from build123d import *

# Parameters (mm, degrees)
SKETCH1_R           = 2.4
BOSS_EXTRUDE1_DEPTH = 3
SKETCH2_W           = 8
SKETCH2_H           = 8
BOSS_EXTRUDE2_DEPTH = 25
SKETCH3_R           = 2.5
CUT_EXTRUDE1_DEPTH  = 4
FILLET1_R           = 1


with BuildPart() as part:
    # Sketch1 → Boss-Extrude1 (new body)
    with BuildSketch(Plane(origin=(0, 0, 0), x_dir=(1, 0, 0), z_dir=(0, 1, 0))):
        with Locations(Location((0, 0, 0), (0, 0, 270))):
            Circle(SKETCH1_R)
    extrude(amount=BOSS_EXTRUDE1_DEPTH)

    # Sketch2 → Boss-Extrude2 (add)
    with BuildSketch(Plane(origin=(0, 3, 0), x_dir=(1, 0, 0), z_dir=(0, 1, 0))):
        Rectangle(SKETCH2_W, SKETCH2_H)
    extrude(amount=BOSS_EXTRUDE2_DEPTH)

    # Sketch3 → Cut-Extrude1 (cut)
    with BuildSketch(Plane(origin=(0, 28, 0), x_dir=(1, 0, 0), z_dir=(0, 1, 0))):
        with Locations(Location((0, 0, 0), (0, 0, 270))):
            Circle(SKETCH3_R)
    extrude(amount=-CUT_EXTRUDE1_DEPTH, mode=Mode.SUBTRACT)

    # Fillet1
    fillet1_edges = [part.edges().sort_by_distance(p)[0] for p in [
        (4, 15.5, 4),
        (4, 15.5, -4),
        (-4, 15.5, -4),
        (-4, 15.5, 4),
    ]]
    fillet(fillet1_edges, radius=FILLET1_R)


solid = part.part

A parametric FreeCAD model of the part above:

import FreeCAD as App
import Part
import Sketcher

V = App.Vector
Q = App.Units.Quantity


def edges_at(feature, points):
    """Names of the edges that pass closest to the given points."""
    edges = feature.Shape.Edges
    near = lambda p: min(range(len(edges)), key=lambda i: edges[i].distToShape(Part.Vertex(*p))[0])
    return sorted({f"Edge{near(p) + 1}" for p in points})


def add_polygon(sketch, points):
    """Adds a closed chain of lines whose ends are joined by coincident constraints."""
    first, n = sketch.GeometryCount, len(points)
    for a, b in zip(points, points[1:] + points[:1]):
        sketch.addGeometry(Part.LineSegment(App.Vector(*a, 0), App.Vector(*b, 0)), False)
    for i in range(n):
        sketch.addConstraint(Sketcher.Constraint("Coincident", first + i, 2, first + (i + 1) % n, 1))

doc = App.newDocument("Part")
body = doc.addObject("PartDesign::Body", "Body")

# Sketch on XZ plane
sketch1 = body.newObject("Sketcher::SketchObject", "Sketch")
sketch1.AttachmentSupport = (doc.getObject("XZ_Plane"), [""])
sketch1.MapMode = "FlatFace"
sketch1.addGeometry(Part.Circle(V(0, 0, 0), V(0, 0, 1), 2.4), False)
sketch1.addConstraint([
    Sketcher.Constraint("Coincident", 0, 3, -1, 1),
    Sketcher.Constraint("Diameter", 0, Q("4.8 mm")),
])
pad1 = body.newObject("PartDesign::Pad", "Pad")
pad1.Profile = sketch1
pad1.Length = 3
pad1.Reversed = True

# Sketch on XZ plane
sketch2 = body.newObject("Sketcher::SketchObject", "Sketch001")
sketch2.AttachmentSupport = (doc.getObject("XZ_Plane"), [""])
sketch2.MapMode = "FlatFace"
sketch2.AttachmentOffset = App.Placement(V(0, 0, -3), App.Rotation())
add_polygon(sketch2, [(-4, -4), (-4, 4), (4, 4), (4, -4)])  # lines 0-3
sketch2.addConstraint([
    Sketcher.Constraint("Vertical", 0),
    Sketcher.Constraint("Horizontal", 1),
    Sketcher.Constraint("Vertical", 2),
    Sketcher.Constraint("Horizontal", 3),
    Sketcher.Constraint("Symmetric", 0, 2, 2, 2, -1, 1),
    Sketcher.Constraint("Equal", 3, 0),
    Sketcher.Constraint("DistanceX", 1, 1, 1, 2, Q("8 mm")),
])
pad2 = body.newObject("PartDesign::Pad", "Pad001")
pad2.Profile = sketch2
pad2.Length = 25
pad2.Reversed = True

# Sketch on XZ plane
sketch3 = body.newObject("Sketcher::SketchObject", "Sketch002")
sketch3.AttachmentSupport = (doc.getObject("XZ_Plane"), [""])
sketch3.MapMode = "FlatFace"
sketch3.AttachmentOffset = App.Placement(V(0, 0, -28), App.Rotation())
sketch3.addGeometry(Part.Circle(V(0, 0, 0), V(0, 0, 1), 2.5), False)
sketch3.addConstraint([
    Sketcher.Constraint("Coincident", 0, 3, -1, 1),
    Sketcher.Constraint("Diameter", 0, Q("5 mm")),
])
pocket1 = body.newObject("PartDesign::Pocket", "Pocket")
pocket1.Profile = sketch3
pocket1.Length = 4
pocket1.Reversed = True
doc.recompute()

fillet = body.newObject("PartDesign::Fillet", "Fillet")
fillet.Base = (pocket1, edges_at(pocket1, [
    (4, 15.5, 4),
    (4, 15.5, -4),
    (-4, 15.5, -4),
    (-4, 15.5, 4),
]))
fillet.Radius = 1

doc.recompute()
